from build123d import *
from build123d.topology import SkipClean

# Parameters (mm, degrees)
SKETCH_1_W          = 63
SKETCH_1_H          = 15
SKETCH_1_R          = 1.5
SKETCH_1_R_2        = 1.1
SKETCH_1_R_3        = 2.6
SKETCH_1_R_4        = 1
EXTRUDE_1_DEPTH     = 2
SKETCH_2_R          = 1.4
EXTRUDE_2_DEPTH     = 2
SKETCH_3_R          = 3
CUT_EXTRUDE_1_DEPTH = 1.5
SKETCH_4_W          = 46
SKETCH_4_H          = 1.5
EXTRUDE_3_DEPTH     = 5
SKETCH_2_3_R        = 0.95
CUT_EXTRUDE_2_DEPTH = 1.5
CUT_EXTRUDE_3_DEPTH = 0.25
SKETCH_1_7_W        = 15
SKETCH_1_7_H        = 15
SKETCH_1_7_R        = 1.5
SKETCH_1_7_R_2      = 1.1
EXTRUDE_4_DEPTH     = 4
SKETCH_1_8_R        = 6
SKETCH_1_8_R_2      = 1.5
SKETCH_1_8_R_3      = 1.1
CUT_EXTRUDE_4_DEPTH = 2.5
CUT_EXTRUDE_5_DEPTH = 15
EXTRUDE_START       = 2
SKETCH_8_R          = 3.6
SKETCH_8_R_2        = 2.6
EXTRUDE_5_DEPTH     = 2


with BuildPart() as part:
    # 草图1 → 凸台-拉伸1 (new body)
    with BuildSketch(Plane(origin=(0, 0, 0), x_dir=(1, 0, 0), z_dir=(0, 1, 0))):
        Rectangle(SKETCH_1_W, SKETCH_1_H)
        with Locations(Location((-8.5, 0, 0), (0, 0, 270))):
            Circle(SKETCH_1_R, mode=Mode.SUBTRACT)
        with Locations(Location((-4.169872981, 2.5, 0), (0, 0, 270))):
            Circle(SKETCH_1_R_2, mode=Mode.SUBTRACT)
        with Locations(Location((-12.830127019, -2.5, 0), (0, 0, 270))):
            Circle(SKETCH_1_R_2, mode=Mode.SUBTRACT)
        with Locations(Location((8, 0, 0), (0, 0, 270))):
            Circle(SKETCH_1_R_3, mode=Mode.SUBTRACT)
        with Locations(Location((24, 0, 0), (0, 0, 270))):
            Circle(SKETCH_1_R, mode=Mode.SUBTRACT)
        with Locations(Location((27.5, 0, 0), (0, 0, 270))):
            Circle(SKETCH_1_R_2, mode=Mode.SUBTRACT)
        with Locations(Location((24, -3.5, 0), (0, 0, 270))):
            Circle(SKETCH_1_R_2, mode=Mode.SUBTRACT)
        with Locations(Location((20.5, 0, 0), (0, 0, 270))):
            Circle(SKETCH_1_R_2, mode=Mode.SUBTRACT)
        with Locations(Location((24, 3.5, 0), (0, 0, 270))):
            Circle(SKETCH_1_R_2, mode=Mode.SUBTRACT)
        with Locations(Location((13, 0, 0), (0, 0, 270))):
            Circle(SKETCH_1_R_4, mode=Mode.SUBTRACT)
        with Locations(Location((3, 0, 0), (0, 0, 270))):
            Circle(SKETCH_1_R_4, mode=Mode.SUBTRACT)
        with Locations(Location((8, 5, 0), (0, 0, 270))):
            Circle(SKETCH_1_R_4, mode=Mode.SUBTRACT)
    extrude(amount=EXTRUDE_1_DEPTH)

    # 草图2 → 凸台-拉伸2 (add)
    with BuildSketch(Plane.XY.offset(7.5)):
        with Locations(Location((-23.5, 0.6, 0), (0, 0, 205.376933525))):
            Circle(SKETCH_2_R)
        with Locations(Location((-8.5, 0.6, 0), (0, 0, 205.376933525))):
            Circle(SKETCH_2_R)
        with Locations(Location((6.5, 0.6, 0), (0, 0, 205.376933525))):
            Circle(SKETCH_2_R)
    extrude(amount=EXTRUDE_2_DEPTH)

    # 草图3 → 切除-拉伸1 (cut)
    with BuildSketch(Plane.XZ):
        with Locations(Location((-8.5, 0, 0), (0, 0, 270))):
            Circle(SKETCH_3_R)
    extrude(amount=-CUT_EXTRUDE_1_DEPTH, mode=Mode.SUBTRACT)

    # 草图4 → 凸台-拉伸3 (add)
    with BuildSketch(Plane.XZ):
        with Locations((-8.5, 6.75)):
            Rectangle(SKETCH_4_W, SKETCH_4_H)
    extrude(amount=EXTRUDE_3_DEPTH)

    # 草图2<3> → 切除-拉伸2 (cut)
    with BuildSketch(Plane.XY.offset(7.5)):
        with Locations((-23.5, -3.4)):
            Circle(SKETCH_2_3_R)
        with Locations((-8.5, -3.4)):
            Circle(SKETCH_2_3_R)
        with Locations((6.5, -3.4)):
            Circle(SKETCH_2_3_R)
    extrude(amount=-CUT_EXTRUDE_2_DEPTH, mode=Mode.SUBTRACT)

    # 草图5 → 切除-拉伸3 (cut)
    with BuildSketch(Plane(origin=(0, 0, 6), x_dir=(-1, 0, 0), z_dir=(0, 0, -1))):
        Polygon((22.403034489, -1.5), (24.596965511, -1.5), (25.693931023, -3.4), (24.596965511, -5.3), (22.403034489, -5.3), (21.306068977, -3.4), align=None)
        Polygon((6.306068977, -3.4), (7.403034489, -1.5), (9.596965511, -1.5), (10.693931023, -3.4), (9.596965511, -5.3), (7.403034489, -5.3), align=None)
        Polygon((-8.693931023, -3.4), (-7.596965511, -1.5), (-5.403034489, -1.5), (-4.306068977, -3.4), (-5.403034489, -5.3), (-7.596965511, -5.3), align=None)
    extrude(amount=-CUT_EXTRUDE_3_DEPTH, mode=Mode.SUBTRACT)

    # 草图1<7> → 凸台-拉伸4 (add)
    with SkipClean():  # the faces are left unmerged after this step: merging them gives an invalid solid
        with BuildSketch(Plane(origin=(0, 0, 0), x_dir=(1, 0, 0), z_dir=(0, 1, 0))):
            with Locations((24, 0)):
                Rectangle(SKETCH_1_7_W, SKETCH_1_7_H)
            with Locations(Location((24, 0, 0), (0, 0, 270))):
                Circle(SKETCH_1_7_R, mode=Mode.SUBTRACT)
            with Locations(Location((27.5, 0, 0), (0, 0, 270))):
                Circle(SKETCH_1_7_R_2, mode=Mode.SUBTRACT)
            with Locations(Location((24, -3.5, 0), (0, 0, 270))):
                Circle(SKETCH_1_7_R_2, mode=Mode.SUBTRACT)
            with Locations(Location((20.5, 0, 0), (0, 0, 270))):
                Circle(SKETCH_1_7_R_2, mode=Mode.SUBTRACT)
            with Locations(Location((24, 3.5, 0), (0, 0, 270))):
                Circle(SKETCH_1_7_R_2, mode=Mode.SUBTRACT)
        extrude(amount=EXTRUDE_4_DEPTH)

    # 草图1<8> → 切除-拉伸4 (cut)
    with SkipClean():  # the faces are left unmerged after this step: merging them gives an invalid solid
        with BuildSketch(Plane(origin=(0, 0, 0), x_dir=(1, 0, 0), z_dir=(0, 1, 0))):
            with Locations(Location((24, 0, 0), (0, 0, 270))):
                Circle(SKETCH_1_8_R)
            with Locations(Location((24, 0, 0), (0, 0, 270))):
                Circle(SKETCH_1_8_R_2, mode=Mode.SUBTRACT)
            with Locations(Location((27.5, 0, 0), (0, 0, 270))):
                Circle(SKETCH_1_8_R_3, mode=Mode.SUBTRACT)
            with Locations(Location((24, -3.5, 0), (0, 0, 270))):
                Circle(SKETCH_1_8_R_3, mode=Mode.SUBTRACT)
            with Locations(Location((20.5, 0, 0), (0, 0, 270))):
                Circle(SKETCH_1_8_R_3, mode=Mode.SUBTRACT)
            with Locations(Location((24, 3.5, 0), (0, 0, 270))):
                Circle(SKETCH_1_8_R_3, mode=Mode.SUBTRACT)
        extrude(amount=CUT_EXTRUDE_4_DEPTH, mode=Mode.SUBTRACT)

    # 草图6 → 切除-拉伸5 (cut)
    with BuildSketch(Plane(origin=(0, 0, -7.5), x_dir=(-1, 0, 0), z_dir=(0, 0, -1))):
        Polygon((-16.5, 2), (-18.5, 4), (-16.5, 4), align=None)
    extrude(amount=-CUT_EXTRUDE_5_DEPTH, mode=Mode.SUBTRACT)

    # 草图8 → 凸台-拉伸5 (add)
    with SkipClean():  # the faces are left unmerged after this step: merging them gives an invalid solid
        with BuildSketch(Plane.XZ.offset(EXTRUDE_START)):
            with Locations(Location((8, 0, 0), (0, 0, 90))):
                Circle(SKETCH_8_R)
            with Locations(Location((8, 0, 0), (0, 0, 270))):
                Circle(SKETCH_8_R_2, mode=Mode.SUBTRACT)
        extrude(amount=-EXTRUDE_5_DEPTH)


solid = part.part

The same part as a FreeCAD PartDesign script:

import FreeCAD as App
import Part
import Sketcher
Q = App.Units.Quantity

doc = App.newDocument("Part")
body = doc.addObject("PartDesign::Body", "Body")

# Sketch on XZ plane
sketch1 = body.newObject("Sketcher::SketchObject", "Sketch")
sketch1.AttachmentSupport = (doc.getObject("XZ_Plane"), [""])
sketch1.MapMode = "FlatFace"
sketch1.addGeometry([
    Part.LineSegment(App.Vector(-31.5, -7.5, 0), App.Vector(-31.5, 7.5, 0)),  # 0
    Part.LineSegment(App.Vector(-31.5, 7.5, 0), App.Vector(31.5, 7.5, 0)),  # 1
    Part.LineSegment(App.Vector(31.5, 7.5, 0), App.Vector(31.5, -7.5, 0)),  # 2
    Part.LineSegment(App.Vector(31.5, -7.5, 0), App.Vector(-31.5, -7.5, 0)),  # 3
    Part.Circle(App.Vector(-12.8, 2.5, 0), App.Vector(0, 0, 1), 1.1),  # 4
    Part.Circle(App.Vector(-8.5, 0, 0), App.Vector(0, 0, 1), 1.5),  # 5
    Part.Circle(App.Vector(3, 0, 0), App.Vector(0, 0, 1), 1),  # 6
    Part.Circle(App.Vector(24, 3.5, 0), App.Vector(0, 0, 1), 1.1),  # 7
    Part.Circle(App.Vector(8, 0, 0), App.Vector(0, 0, 1), 2.6),  # 8
    Part.Circle(App.Vector(13, 0, 0), App.Vector(0, 0, 1), 1),  # 9
    Part.Circle(App.Vector(20.5, 0, 0), App.Vector(0, 0, 1), 1.1),  # 10
    Part.Circle(App.Vector(24, 0, 0), App.Vector(0, 0, 1), 1.5),  # 11
    Part.Circle(App.Vector(27.5, 0, 0), App.Vector(0, 0, 1), 1.1),  # 12
    Part.Circle(App.Vector(-4.2, -2.5, 0), App.Vector(0, 0, 1), 1.1),  # 13
    Part.Circle(App.Vector(8, -5, 0), App.Vector(0, 0, 1), 1),  # 14
    Part.Circle(App.Vector(24, -3.5, 0), App.Vector(0, 0, 1), 1.1),  # 15
], False)
sketch1.addConstraint([
    Sketcher.Constraint("Coincident", 0, 2, 1, 1),
    Sketcher.Constraint("Coincident", 1, 2, 2, 1),
    Sketcher.Constraint("Coincident", 2, 2, 3, 1),
    Sketcher.Constraint("Coincident", 3, 2, 0, 1),
    Sketcher.Constraint("Vertical", 0),
    Sketcher.Constraint("Horizontal", 1),
    Sketcher.Constraint("Vertical", 2),
    Sketcher.Constraint("Horizontal", 3),
    Sketcher.Constraint("Equal", 4, 7),
    Sketcher.Constraint("Equal", 6, 9),
    Sketcher.Constraint("Equal", 7, 10),
    Sketcher.Constraint("Equal", 5, 11),
    Sketcher.Constraint("Equal", 10, 12),
    Sketcher.Constraint("Equal", 12, 13),
    Sketcher.Constraint("Equal", 9, 14),
    Sketcher.Constraint("Equal", 13, 15),
    Sketcher.Constraint("Symmetric", 0, 2, 2, 2, -1, 1),
    Sketcher.Constraint("Symmetric", 7, 3, 15, 3, -1),
    Sketcher.Constraint("PointOnObject", 5, 3, -1),
    Sketcher.Constraint("PointOnObject", 6, 3, -1),
    Sketcher.Constraint("PointOnObject", 8, 3, -1),
    Sketcher.Constraint("PointOnObject", 9, 3, -1),
    Sketcher.Constraint("PointOnObject", 10, 3, -1),
    Sketcher.Constraint("PointOnObject", 11, 3, -1),
    Sketcher.Constraint("PointOnObject", 12, 3, -1),
    Sketcher.Constraint("Vertical", 7, 3, 11, 3),
    Sketcher.Constraint("Vertical", 8, 3, 14, 3),
    Sketcher.Constraint("Diameter", 5, 3.0),
    Sketcher.Constraint("Diameter", 6, 2.0),
    Sketcher.Constraint("Diameter", 4, 2.2),
    Sketcher.Constraint("Diameter", 8, 5.2),
    Sketcher.Constraint("DistanceX", 1, 1, 1, 2, 63.0),
    Sketcher.Constraint("DistanceY", 0, 1, 0, 2, 15.0),
    Sketcher.Constraint("DistanceX", -1, 1, 6, 3, 3.0),
    Sketcher.Constraint("DistanceX", -1, 1, 7, 3, 24.0),
    Sketcher.Constraint("DistanceX", -1, 1, 8, 3, 8.0),
    Sketcher.Constraint("DistanceX", -1, 1, 9, 3, 13.0),
    Sketcher.Constraint("DistanceY", 14, 3, -1, 1, 5.0),
    Sketcher.Constraint("DistanceY", 4, 3, 7, 3, 1.0),
    Sketcher.Constraint("DistanceX", 5, 3, 10, 3, 29.0),
    Sketcher.Constraint("DistanceX", 10, 3, 12, 3, 7.0),
    Sketcher.Constraint("DistanceY", 13, 3, 4, 3, 5.0),
    Sketcher.Constraint("DistanceY", 15, 3, 7, 3, 7.0),
    Sketcher.Constraint("DistanceX", 0, 2, 5, 3, 23.0),
    Sketcher.Constraint("DistanceX", 4, 3, -1, 1, 12.830127),
    Sketcher.Constraint("DistanceX", 13, 3, -1, 1, 4.169873),
])
pad1 = body.newObject("PartDesign::Pad", "Pad")
pad1.Profile = sketch1
pad1.Length = 2
pad1.Reversed = True

# Sketch on XY plane
sketch2 = body.newObject("Sketcher::SketchObject", "Sketch001")
sketch2.AttachmentSupport = (doc.getObject("XY_Plane"), [""])
sketch2.MapMode = "FlatFace"
sketch2.AttachmentOffset = App.Placement(App.Vector(0, 0, 7.5), App.Rotation())
sketch2.addGeometry([
    Part.Circle(App.Vector(-23.5, 0.6, 0), App.Vector(0, 0, 1), 1.4),
    Part.Circle(App.Vector(-8.5, 0.6, 0), App.Vector(0, 0, 1), 1.4),
    Part.Circle(App.Vector(6.5, 0.6, 0), App.Vector(0, 0, 1), 1.4),
], False)
sketch2.addConstraint([
    Sketcher.Constraint("Equal", 0, 1),
    Sketcher.Constraint("Equal", 1, 2),
    Sketcher.Constraint("Horizontal", 0, 3, 1, 3),
    Sketcher.Constraint("Horizontal", 1, 3, 2, 3),
    Sketcher.Constraint("Diameter", 0, 2.8),
    Sketcher.Constraint("DistanceX", 0, 3, 1, 3, 15.0),
    Sketcher.Constraint("DistanceX", 1, 3, 2, 3, 15.0),
    Sketcher.Constraint("DistanceX", 0, 3, -1, 1, 23.5),
    Sketcher.Constraint("DistanceY", -1, 1, 0, 3, 0.6),
])
pad2 = body.newObject("PartDesign::Pad", "Pad001")
pad2.Profile = sketch2
pad2.Length = 2

# Sketch on XZ plane
sketch3 = body.newObject("Sketcher::SketchObject", "Sketch002")
sketch3.AttachmentSupport = (doc.getObject("XZ_Plane"), [""])
sketch3.MapMode = "FlatFace"
sketch3.addGeometry(Part.Circle(App.Vector(-8.5, 0, 0), App.Vector(0, 0, 1), 3), False)
sketch3.addConstraint([
    Sketcher.Constraint("PointOnObject", 0, 3, -1),
    Sketcher.Constraint("Diameter", 0, 6.0),
    Sketcher.Constraint("DistanceX", 0, 3, -1, 1, 8.5),
])
pocket1 = body.newObject("PartDesign::Pocket", "Pocket")
pocket1.Profile = sketch3
pocket1.Length = 1.5

# Sketch on XZ plane
sketch4 = body.newObject("Sketcher::SketchObject", "Sketch003")
sketch4.AttachmentSupport = (doc.getObject("XZ_Plane"), [""])
sketch4.MapMode = "FlatFace"
sketch4.addGeometry([
    Part.LineSegment(App.Vector(-31.5, 7.5, 0), App.Vector(-31.5, 6, 0)),
    Part.LineSegment(App.Vector(-31.5, 6, 0), App.Vector(14.5, 6, 0)),
    Part.LineSegment(App.Vector(14.5, 6, 0), App.Vector(14.5, 7.5, 0)),
    Part.LineSegment(App.Vector(14.5, 7.5, 0), App.Vector(-31.5, 7.5, 0)),
], False)
sketch4.addConstraint([
    Sketcher.Constraint("Coincident", 0, 2, 1, 1),
    Sketcher.Constraint("Coincident", 1, 2, 2, 1),
    Sketcher.Constraint("Coincident", 2, 2, 3, 1),
    Sketcher.Constraint("Coincident", 3, 2, 0, 1),
    Sketcher.Constraint("Vertical", 0),
    Sketcher.Constraint("Horizontal", 1),
    Sketcher.Constraint("Vertical", 2),
    Sketcher.Constraint("Horizontal", 3),
    Sketcher.Constraint("DistanceX", 1, 1, 1, 2, 46.0),
    Sketcher.Constraint("DistanceY", 0, 2, 0, 1, 1.5),
    Sketcher.Constraint("DistanceY", -1, 1, 0, 2, 6.0),
    Sketcher.Constraint("DistanceX", 0, 2, -1, 1, 31.5),
])
pad3 = body.newObject("PartDesign::Pad", "Pad002")
pad3.Profile = sketch4
pad3.Length = 5

# Sketch on XY plane
sketch5 = body.newObject("Sketcher::SketchObject", "Sketch004")
sketch5.AttachmentSupport = (doc.getObject("XY_Plane"), [""])
sketch5.MapMode = "FlatFace"
sketch5.AttachmentOffset = App.Placement(App.Vector(0, 0, 7.5), App.Rotation())
sketch5.addGeometry([
    Part.Circle(App.Vector(-23.5, -3.4, 0), App.Vector(0, 0, 1), 0.9),
    Part.Circle(App.Vector(-8.5, -3.4, 0), App.Vector(0, 0, 1), 0.9),
    Part.Circle(App.Vector(6.5, -3.4, 0), App.Vector(0, 0, 1), 0.9),
], False)
sketch5.addConstraint([
    Sketcher.Constraint("Equal", 0, 1),
    Sketcher.Constraint("Equal", 1, 2),
    Sketcher.Constraint("Horizontal", 0, 3, 1, 3),
    Sketcher.Constraint("Horizontal", 1, 3, 2, 3),
    Sketcher.Constraint("Diameter", 0, 1.9),
    Sketcher.Constraint("DistanceX", 0, 3, 1, 3, 15.0),
    Sketcher.Constraint("DistanceX", 1, 3, 2, 3, 15.0),
    Sketcher.Constraint("DistanceX", 0, 3, -1, 1, 23.5),
    Sketcher.Constraint("DistanceY", 0, 3, -1, 1, 3.4),
])
pocket2 = body.newObject("PartDesign::Pocket", "Pocket001")
pocket2.Profile = sketch5
pocket2.Length = 1.5

# Sketch on XY plane
sketch6 = body.newObject("Sketcher::SketchObject", "Sketch005")
sketch6.AttachmentSupport = (doc.getObject("XY_Plane"), [""])
sketch6.MapMode = "FlatFace"
sketch6.AttachmentOffset = App.Placement(App.Vector(0, 0, 6), App.Rotation())
sketch6.addGeometry([
    Part.LineSegment(App.Vector(-24.6, -1.5, 0), App.Vector(-22.4, -1.5, 0)),  # 0
    Part.LineSegment(App.Vector(-22.4, -1.5, 0), App.Vector(-21.3, -3.4, 0)),  # 1
    Part.LineSegment(App.Vector(-21.3, -3.4, 0), App.Vector(-22.4, -5.3, 0)),  # 2
    Part.LineSegment(App.Vector(-22.4, -5.3, 0), App.Vector(-24.6, -5.3, 0)),  # 3
    Part.LineSegment(App.Vector(-24.6, -5.3, 0), App.Vector(-25.7, -3.4, 0)),  # 4
    Part.LineSegment(App.Vector(-25.7, -3.4, 0), App.Vector(-24.6, -1.5, 0)),  # 5
    Part.LineSegment(App.Vector(-7.4, -1.5, 0), App.Vector(-6.3, -3.4, 0)),  # 6
    Part.LineSegment(App.Vector(-6.3, -3.4, 0), App.Vector(-7.4, -5.3, 0)),  # 7
    Part.LineSegment(App.Vector(-7.4, -5.3, 0), App.Vector(-9.6, -5.3, 0)),  # 8
    Part.LineSegment(App.Vector(-9.6, -5.3, 0), App.Vector(-10.7, -3.4, 0)),  # 9
    Part.LineSegment(App.Vector(-10.7, -3.4, 0), App.Vector(-9.6, -1.5, 0)),  # 10
    Part.LineSegment(App.Vector(-9.6, -1.5, 0), App.Vector(-7.4, -1.5, 0)),  # 11
    Part.LineSegment(App.Vector(7.6, -1.5, 0), App.Vector(8.7, -3.4, 0)),  # 12
    Part.LineSegment(App.Vector(8.7, -3.4, 0), App.Vector(7.6, -5.3, 0)),  # 13
    Part.LineSegment(App.Vector(7.6, -5.3, 0), App.Vector(5.4, -5.3, 0)),  # 14
    Part.LineSegment(App.Vector(5.4, -5.3, 0), App.Vector(4.3, -3.4, 0)),  # 15
    Part.LineSegment(App.Vector(4.3, -3.4, 0), App.Vector(5.4, -1.5, 0)),  # 16
    Part.LineSegment(App.Vector(5.4, -1.5, 0), App.Vector(7.6, -1.5, 0)),  # 17
], False)
sketch6.addConstraint([
    Sketcher.Constraint("Coincident", 0, 2, 1, 1),
    Sketcher.Constraint("Coincident", 1, 2, 2, 1),
    Sketcher.Constraint("Coincident", 2, 2, 3, 1),
    Sketcher.Constraint("Coincident", 3, 2, 4, 1),
    Sketcher.Constraint("Coincident", 4, 2, 5, 1),
    Sketcher.Constraint("Coincident", 5, 2, 0, 1),
    Sketcher.Constraint("Coincident", 6, 2, 7, 1),
    Sketcher.Constraint("Coincident", 7, 2, 8, 1),
    Sketcher.Constraint("Coincident", 8, 2, 9, 1),
    Sketcher.Constraint("Coincident", 9, 2, 10, 1),
    Sketcher.Constraint("Coincident", 10, 2, 11, 1),
    Sketcher.Constraint("Coincident", 11, 2, 6, 1),
    Sketcher.Constraint("Coincident", 12, 2, 13, 1),
    Sketcher.Constraint("Coincident", 13, 2, 14, 1),
    Sketcher.Constraint("Coincident", 14, 2, 15, 1),
    Sketcher.Constraint("Coincident", 15, 2, 16, 1),
    Sketcher.Constraint("Coincident", 16, 2, 17, 1),
    Sketcher.Constraint("Coincident", 17, 2, 12, 1),
    Sketcher.Constraint("Horizontal", 0),
    Sketcher.Constraint("Horizontal", 3),
    Sketcher.Constraint("Horizontal", 8),
    Sketcher.Constraint("Horizontal", 11),
    Sketcher.Constraint("Horizontal", 14),
    Sketcher.Constraint("Horizontal", 17),
    Sketcher.Constraint("Parallel", 1, 4),
    Sketcher.Constraint("Parallel", 2, 5),
    Sketcher.Constraint("Parallel", 4, 6),
    Sketcher.Constraint("Parallel", 5, 7),
    Sketcher.Constraint("Parallel", 6, 9),
    Sketcher.Constraint("Parallel", 7, 10),
    Sketcher.Constraint("Parallel", 9, 12),
    Sketcher.Constraint("Parallel", 10, 13),
    Sketcher.Constraint("Parallel", 12, 15),
    Sketcher.Constraint("Parallel", 13, 16),
    Sketcher.Constraint("Horizontal", 1, 2, 4, 2),
    Sketcher.Constraint("Horizontal", 4, 2, 6, 2),
    Sketcher.Constraint("Horizontal", 3, 2, 7, 2),
    Sketcher.Constraint("Horizontal", 6, 2, 9, 2),
    Sketcher.Constraint("Horizontal", 5, 2, 10, 2),
    Sketcher.Constraint("Horizontal", 9, 2, 12, 2),
    Sketcher.Constraint("Horizontal", 8, 2, 13, 2),
    Sketcher.Constraint("Horizontal", 12, 2, 15, 2),
    Sketcher.Constraint("Horizontal", 11, 2, 16, 2),
    Sketcher.Constraint("Vertical", 0, 2, 2, 2),
    Sketcher.Constraint("Vertical", 3, 2, 5, 2),
    Sketcher.Constraint("Equal", 3, 8),
    Sketcher.Constraint("Equal", 11, 14),
    Sketcher.Constraint("Angle", 1, Q("-60 deg")),
    Sketcher.Constraint("DistanceX", 1, 2, 6, 2, 15.0),
    Sketcher.Constraint("DistanceX", 6, 2, 12, 2, 15.0),
    Sketcher.Constraint("DistanceY", 0, 2, -1, 1, 1.5),
    Sketcher.Constraint("DistanceY", 1, 2, -1, 1, 3.4),
    Sketcher.Constraint("DistanceX", 0, 1, 0, 2, 2.193931),
    Sketcher.Constraint("DistanceX", 1, 2, -1, 1, 21.306069),
])
pocket3 = body.newObject("PartDesign::Pocket", "Pocket002")
pocket3.Profile = sketch6
pocket3.Length = 0.25
pocket3.Reversed = True

# Sketch on XZ plane
sketch7 = body.newObject("Sketcher::SketchObject", "Sketch006")
sketch7.AttachmentSupport = (doc.getObject("XZ_Plane"), [""])
sketch7.MapMode = "FlatFace"
sketch7.addGeometry([
    Part.LineSegment(App.Vector(16.5, -7.5, 0), App.Vector(16.5, 7.5, 0)),  # 0
    Part.LineSegment(App.Vector(16.5, 7.5, 0), App.Vector(31.5, 7.5, 0)),  # 1
    Part.LineSegment(App.Vector(31.5, 7.5, 0), App.Vector(31.5, -7.5, 0)),  # 2
    Part.LineSegment(App.Vector(31.5, -7.5, 0), App.Vector(16.5, -7.5, 0)),  # 3
    Part.Circle(App.Vector(24, 3.5, 0), App.Vector(0, 0, 1), 1.1),  # 4
    Part.Circle(App.Vector(20.5, 0, 0), App.Vector(0, 0, 1), 1.1),  # 5
    Part.Circle(App.Vector(24, 0, 0), App.Vector(0, 0, 1), 1.5),  # 6
    Part.Circle(App.Vector(27.5, 0, 0), App.Vector(0, 0, 1), 1.1),  # 7
    Part.Circle(App.Vector(24, -3.5, 0), App.Vector(0, 0, 1), 1.1),  # 8
], False)
sketch7.addConstraint([
    Sketcher.Constraint("Coincident", 0, 2, 1, 1),
    Sketcher.Constraint("Coincident", 1, 2, 2, 1),
    Sketcher.Constraint("Coincident", 2, 2, 3, 1),
    Sketcher.Constraint("Coincident", 3, 2, 0, 1),
    Sketcher.Constraint("Vertical", 0),
    Sketcher.Constraint("Horizontal", 1),
    Sketcher.Constraint("Vertical", 2),
    Sketcher.Constraint("Horizontal", 3),
    Sketcher.Constraint("Equal", 4, 5),
    Sketcher.Constraint("Equal", 5, 7),
    Sketcher.Constraint("Equal", 7, 8),
    Sketcher.Constraint("Symmetric", 4, 3, 8, 3, -1),
    Sketcher.Constraint("PointOnObject", 5, 3, -1),
    Sketcher.Constraint("PointOnObject", 6, 3, -1),
    Sketcher.Constraint("PointOnObject", 7, 3, -1),
    Sketcher.Constraint("Vertical", 4, 3, 6, 3),
    Sketcher.Constraint("Equal", 3, 0),
    Sketcher.Constraint("Diameter", 6, 3.0),
    Sketcher.Constraint("Diameter", 4, 2.2),
    Sketcher.Constraint("DistanceX", 1, 1, 1, 2, 15.0),
    Sketcher.Constraint("DistanceX", -1, 1, 4, 3, 24.0),
    Sketcher.Constraint("DistanceX", 5, 3, 7, 3, 7.0),
    Sketcher.Constraint("DistanceY", 8, 3, 4, 3, 7.0),
    Sketcher.Constraint("DistanceY", 4, 3, 0, 2, 4.0),
    Sketcher.Constraint("DistanceX", 0, 2, 5, 3, 4.0),
    Sketcher.Constraint("DistanceX", -1, 1, 5, 3, 20.5),
])
pad4 = body.newObject("PartDesign::Pad", "Pad003")
pad4.Profile = sketch7
pad4.Length = 4
pad4.Reversed = True

# Sketch on XZ plane
sketch8 = body.newObject("Sketcher::SketchObject", "Sketch007")
sketch8.AttachmentSupport = (doc.getObject("XZ_Plane"), [""])
sketch8.MapMode = "FlatFace"
sketch8.addGeometry([
    Part.Circle(App.Vector(24, 0, 0), App.Vector(0, 0, 1), 6),  # 0
    Part.Circle(App.Vector(20.5, 0, 0), App.Vector(0, 0, 1), 1.1),  # 1
    Part.Circle(App.Vector(24, -3.5, 0), App.Vector(0, 0, 1), 1.1),  # 2
    Part.Circle(App.Vector(24, 0, 0), App.Vector(0, 0, 1), 1.5),  # 3
    Part.Circle(App.Vector(24, 3.5, 0), App.Vector(0, 0, 1), 1.1),  # 4
    Part.Circle(App.Vector(27.5, 0, 0), App.Vector(0, 0, 1), 1.1),  # 5
], False)
sketch8.addConstraint([
    Sketcher.Constraint("Coincident", 3, 3, 0, 3),
    Sketcher.Constraint("Equal", 1, 2),
    Sketcher.Constraint("Equal", 2, 4),
    Sketcher.Constraint("Equal", 4, 5),
    Sketcher.Constraint("Symmetric", 2, 3, 4, 3, -1),
    Sketcher.Constraint("PointOnObject", 0, 3, -1),
    Sketcher.Constraint("PointOnObject", 1, 3, -1),
    Sketcher.Constraint("PointOnObject", 5, 3, -1),
    Sketcher.Constraint("Vertical", 0, 3, 2, 3),
    Sketcher.Constraint("Diameter", 0, 12.0),
    Sketcher.Constraint("Diameter", 3, 3.0),
    Sketcher.Constraint("Diameter", 1, 2.2),
    Sketcher.Constraint("DistanceX", -1, 1, 0, 3, 24.0),
    Sketcher.Constraint("DistanceY", 2, 3, 4, 3, 7.0),
    Sketcher.Constraint("DistanceX", 1, 3, 5, 3, 7.0),
    Sketcher.Constraint("DistanceX", -1, 1, 1, 3, 20.5),
])
pocket4 = body.newObject("PartDesign::Pocket", "Pocket003")
pocket4.Profile = sketch8
pocket4.Length = 2.5

# Sketch on XY plane
sketch9 = body.newObject("Sketcher::SketchObject", "Sketch008")
sketch9.AttachmentSupport = (doc.getObject("XY_Plane"), [""])
sketch9.MapMode = "FlatFace"
sketch9.AttachmentOffset = App.Placement(App.Vector(0, 0, -7.5), App.Rotation())
sketch9.addGeometry([
    Part.LineSegment(App.Vector(18.5, 4, 0), App.Vector(16.5, 2, 0)),
    Part.LineSegment(App.Vector(16.5, 2, 0), App.Vector(16.5, 4, 0)),
    Part.LineSegment(App.Vector(16.5, 4, 0), App.Vector(18.5, 4, 0)),
], False)
sketch9.addConstraint([
    Sketcher.Constraint("Coincident", 0, 2, 1, 1),
    Sketcher.Constraint("Coincident", 1, 2, 2, 1),
    Sketcher.Constraint("Coincident", 2, 2, 0, 1),
    Sketcher.Constraint("Vertical", 1),
    Sketcher.Constraint("Horizontal", 2),
    Sketcher.Constraint("Equal", 2, 1),
    Sketcher.Constraint("DistanceX", 2, 1, 2, 2, 2.0),
    Sketcher.Constraint("DistanceY", -1, 1, 0, 2, 2.0),
    Sketcher.Constraint("DistanceX", -1, 1, 0, 2, 16.5),
])
pocket5 = body.newObject("PartDesign::Pocket", "Pocket004")
pocket5.Profile = sketch9
pocket5.Length = 15
pocket5.Reversed = True

# Sketch on XZ plane
sketch10 = body.newObject("Sketcher::SketchObject", "Sketch009")
sketch10.AttachmentSupport = (doc.getObject("XZ_Plane"), [""])
sketch10.MapMode = "FlatFace"
sketch10.AttachmentOffset = App.Placement(App.Vector(0, 0, 2), App.Rotation())
sketch10.addGeometry([
    Part.Circle(App.Vector(8, 0, 0), App.Vector(0, 0, 1), 3.6),
    Part.Circle(App.Vector(8, 0, 0), App.Vector(0, 0, 1), 2.6),
], False)
sketch10.addConstraint([
    Sketcher.Constraint("Coincident", 1, 3, 0, 3),
    Sketcher.Constraint("PointOnObject", 0, 3, -1),
    Sketcher.Constraint("Diameter", 0, 7.2),
    Sketcher.Constraint("Diameter", 1, 5.2),
    Sketcher.Constraint("DistanceX", -1, 1, 0, 3, 8.0),
])
pad5 = body.newObject("PartDesign::Pad", "Pad004")
pad5.Profile = sketch10
pad5.Length = 2
pad5.Reversed = True

doc.recompute()
